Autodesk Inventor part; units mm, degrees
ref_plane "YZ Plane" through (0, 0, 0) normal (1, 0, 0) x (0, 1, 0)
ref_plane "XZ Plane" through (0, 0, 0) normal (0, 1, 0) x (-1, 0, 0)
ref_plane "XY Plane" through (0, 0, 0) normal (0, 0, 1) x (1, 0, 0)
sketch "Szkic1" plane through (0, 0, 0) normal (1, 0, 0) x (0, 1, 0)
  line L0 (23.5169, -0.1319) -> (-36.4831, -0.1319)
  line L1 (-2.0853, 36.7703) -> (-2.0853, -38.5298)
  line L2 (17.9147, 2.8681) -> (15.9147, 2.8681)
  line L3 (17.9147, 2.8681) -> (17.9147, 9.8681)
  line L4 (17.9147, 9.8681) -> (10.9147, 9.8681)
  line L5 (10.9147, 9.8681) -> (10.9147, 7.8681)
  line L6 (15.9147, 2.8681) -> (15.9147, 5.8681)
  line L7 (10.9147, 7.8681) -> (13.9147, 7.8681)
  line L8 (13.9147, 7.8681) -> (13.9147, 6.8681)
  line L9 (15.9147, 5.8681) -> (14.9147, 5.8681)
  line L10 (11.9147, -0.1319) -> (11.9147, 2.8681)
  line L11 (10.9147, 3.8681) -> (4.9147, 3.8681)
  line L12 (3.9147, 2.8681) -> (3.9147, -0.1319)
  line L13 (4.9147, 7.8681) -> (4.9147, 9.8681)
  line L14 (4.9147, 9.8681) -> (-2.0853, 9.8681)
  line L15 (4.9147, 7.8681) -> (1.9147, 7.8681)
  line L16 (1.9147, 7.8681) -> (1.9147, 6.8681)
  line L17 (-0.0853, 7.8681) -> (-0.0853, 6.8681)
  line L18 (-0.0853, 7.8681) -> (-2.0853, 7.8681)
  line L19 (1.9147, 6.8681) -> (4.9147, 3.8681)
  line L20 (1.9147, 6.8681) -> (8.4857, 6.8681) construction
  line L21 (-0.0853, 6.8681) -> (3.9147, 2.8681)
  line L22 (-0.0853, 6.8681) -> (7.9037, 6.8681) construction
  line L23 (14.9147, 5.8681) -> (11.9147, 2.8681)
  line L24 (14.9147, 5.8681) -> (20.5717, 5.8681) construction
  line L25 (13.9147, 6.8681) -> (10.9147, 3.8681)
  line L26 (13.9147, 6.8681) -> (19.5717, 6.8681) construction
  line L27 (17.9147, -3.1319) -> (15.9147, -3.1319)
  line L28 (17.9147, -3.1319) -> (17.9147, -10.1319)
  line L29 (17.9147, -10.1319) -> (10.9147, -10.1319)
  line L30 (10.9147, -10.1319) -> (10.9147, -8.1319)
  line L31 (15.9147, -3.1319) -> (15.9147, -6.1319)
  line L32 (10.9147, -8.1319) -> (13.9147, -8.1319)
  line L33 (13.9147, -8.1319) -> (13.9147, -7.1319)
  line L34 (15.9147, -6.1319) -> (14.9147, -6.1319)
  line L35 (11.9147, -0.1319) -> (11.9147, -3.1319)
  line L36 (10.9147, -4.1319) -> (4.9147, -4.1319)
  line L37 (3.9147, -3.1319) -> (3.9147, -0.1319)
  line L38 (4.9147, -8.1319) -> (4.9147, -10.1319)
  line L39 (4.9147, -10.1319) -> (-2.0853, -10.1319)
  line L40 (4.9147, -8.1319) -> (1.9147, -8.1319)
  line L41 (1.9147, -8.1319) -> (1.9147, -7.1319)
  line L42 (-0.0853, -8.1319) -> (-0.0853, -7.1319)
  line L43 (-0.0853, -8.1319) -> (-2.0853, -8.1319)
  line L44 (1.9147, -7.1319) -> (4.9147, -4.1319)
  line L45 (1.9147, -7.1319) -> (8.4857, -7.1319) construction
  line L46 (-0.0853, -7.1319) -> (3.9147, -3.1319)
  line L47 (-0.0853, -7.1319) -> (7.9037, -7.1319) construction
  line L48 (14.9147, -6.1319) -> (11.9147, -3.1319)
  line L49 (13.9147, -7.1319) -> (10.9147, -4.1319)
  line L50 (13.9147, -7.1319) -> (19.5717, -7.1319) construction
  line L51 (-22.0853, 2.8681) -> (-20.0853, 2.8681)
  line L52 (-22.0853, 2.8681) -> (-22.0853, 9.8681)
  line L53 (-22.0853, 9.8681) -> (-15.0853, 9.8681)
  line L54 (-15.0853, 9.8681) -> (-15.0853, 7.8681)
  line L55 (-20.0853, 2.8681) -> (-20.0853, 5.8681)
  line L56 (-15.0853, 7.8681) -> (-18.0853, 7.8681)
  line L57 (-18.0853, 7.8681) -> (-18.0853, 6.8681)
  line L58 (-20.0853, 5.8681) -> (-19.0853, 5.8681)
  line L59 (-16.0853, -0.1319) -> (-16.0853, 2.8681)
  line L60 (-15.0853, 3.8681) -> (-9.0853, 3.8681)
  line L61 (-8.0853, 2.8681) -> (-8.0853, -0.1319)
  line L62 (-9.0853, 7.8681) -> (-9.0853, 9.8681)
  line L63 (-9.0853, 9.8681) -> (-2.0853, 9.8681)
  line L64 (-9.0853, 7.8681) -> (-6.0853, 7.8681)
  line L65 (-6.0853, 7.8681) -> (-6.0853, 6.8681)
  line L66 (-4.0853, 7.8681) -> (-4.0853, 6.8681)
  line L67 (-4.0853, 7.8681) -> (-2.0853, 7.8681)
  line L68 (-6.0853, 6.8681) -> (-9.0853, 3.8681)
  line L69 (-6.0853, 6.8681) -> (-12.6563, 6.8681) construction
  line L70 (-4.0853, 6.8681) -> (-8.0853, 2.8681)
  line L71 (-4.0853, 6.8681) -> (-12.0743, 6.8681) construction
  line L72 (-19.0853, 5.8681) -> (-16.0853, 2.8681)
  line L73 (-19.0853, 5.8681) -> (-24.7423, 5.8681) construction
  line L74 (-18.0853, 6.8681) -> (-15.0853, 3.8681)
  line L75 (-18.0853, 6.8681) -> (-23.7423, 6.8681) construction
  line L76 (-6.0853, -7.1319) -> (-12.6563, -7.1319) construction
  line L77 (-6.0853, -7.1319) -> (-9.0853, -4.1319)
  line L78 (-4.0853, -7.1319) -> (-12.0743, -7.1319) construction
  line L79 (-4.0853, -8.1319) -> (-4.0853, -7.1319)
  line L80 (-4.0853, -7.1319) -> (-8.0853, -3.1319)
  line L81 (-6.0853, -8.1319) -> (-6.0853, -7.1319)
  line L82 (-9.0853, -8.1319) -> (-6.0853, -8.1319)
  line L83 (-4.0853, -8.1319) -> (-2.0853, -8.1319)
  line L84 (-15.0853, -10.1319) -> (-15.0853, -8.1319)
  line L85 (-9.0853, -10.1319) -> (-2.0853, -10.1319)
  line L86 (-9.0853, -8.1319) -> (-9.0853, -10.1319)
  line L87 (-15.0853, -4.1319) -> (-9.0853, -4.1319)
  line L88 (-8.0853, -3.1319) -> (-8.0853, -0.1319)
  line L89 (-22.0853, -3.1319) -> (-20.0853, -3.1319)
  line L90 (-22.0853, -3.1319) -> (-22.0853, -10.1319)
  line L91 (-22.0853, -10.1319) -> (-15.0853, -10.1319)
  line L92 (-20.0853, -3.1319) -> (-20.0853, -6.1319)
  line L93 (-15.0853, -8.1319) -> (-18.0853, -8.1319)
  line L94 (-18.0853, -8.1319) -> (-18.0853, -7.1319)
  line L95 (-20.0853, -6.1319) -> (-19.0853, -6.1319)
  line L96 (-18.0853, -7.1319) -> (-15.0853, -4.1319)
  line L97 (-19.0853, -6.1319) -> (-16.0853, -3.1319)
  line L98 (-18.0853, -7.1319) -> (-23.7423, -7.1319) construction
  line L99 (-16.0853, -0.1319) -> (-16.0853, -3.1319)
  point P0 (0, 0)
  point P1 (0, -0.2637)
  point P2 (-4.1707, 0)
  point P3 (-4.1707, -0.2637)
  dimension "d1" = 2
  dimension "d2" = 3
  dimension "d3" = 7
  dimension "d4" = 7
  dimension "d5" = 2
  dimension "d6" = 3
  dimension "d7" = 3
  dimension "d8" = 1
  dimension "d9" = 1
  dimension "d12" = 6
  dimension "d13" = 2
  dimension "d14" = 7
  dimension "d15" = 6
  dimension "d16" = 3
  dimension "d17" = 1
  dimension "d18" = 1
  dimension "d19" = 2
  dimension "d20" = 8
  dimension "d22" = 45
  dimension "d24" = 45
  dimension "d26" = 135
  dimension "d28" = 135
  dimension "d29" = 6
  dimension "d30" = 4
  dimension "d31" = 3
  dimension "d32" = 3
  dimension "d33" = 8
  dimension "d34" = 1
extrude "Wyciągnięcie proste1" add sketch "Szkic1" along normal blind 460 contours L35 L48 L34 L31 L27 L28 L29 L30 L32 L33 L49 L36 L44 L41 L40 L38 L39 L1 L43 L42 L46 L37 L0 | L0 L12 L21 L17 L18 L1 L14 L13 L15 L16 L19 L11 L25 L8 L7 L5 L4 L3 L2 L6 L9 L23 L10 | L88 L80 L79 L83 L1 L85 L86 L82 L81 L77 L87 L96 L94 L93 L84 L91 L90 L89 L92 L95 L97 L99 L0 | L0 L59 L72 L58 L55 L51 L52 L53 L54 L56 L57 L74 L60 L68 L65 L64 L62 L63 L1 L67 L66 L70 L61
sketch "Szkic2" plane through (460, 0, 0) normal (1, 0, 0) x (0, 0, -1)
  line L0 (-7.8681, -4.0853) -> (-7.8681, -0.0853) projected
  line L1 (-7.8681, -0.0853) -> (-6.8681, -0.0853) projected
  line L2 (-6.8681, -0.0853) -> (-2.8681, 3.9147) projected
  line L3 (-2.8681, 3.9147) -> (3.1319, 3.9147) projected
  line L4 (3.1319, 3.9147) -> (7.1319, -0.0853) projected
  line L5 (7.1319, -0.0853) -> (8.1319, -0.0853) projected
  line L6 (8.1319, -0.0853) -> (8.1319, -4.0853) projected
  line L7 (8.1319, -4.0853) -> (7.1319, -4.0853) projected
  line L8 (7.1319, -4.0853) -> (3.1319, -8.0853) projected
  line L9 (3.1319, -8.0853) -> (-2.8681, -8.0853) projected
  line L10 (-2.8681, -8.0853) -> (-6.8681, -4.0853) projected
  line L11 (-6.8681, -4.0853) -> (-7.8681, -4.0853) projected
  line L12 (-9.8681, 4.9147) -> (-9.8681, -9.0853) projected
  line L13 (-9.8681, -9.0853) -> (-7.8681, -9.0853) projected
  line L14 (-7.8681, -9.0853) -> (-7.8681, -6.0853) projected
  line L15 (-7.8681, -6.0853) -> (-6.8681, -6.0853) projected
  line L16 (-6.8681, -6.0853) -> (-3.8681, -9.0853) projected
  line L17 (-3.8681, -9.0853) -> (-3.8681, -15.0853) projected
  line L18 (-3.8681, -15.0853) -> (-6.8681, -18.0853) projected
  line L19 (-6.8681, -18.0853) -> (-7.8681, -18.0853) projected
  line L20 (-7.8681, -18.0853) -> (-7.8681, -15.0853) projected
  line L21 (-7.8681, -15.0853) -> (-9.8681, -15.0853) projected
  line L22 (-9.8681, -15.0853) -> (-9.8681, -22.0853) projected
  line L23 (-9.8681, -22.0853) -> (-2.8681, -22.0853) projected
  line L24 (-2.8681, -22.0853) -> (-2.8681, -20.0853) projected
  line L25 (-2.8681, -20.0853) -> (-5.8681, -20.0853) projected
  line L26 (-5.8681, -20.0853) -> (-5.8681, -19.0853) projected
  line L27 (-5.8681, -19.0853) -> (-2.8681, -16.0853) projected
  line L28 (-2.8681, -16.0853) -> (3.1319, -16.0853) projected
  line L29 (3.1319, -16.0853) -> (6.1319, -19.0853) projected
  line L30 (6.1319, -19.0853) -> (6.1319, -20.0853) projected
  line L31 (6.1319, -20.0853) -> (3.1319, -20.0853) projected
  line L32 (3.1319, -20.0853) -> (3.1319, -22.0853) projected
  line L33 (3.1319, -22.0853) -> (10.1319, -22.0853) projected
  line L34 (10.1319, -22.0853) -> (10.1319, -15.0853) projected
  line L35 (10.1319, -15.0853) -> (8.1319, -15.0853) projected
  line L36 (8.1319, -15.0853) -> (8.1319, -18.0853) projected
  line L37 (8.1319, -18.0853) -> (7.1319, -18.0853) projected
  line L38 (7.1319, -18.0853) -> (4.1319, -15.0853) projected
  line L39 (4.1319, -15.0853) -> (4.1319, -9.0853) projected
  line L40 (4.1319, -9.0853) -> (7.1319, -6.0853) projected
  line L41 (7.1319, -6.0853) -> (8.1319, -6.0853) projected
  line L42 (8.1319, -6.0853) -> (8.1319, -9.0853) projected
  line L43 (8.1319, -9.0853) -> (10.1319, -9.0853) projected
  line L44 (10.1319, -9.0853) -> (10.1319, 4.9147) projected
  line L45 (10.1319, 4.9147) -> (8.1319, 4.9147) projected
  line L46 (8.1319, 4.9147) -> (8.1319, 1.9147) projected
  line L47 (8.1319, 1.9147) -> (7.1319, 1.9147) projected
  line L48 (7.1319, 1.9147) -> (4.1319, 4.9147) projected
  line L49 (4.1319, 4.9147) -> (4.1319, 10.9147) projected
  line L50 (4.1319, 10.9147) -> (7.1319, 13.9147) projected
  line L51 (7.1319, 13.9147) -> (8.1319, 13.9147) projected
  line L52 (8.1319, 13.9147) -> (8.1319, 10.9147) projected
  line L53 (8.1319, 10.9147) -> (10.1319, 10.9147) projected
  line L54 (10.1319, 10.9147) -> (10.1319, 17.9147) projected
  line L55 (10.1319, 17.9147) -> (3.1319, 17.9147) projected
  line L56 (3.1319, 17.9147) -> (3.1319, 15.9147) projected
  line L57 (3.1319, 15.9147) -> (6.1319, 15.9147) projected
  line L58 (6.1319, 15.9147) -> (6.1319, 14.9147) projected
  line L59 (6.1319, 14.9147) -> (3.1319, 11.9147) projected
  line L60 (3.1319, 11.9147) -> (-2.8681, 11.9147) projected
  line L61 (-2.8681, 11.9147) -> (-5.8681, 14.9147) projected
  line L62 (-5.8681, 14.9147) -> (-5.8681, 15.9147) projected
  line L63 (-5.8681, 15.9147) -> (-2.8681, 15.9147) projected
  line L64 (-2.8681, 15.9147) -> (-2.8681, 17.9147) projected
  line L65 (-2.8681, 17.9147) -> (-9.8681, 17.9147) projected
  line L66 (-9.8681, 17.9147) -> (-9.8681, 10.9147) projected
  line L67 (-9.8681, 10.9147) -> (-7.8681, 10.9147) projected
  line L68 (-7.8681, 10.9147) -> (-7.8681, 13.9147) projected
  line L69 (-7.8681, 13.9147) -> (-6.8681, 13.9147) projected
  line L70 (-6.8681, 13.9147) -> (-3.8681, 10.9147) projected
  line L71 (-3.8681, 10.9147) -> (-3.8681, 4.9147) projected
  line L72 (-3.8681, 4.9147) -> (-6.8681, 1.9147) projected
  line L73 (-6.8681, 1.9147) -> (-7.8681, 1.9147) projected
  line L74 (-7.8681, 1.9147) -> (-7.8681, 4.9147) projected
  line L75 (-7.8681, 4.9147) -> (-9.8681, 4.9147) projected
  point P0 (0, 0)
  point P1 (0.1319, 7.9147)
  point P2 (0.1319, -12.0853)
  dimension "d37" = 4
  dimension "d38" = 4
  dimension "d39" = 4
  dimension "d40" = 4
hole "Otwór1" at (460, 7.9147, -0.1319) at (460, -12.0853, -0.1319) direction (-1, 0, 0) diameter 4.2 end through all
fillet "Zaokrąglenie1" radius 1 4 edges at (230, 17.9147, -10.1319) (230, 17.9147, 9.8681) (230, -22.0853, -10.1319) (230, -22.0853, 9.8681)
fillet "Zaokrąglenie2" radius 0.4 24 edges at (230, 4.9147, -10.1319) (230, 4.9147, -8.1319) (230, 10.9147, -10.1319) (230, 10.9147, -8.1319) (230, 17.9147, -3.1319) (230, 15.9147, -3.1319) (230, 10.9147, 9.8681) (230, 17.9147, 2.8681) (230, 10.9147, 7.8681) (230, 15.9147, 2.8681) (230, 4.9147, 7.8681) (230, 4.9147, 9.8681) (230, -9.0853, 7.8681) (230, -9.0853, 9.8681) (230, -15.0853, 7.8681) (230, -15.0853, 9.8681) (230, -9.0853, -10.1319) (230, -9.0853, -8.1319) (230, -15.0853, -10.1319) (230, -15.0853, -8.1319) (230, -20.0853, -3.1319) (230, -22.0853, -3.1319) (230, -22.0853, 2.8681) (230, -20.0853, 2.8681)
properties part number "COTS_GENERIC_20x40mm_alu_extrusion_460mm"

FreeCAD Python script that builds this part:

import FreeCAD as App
import Part
import Sketcher
from FreeCAD import Vector
Q = App.Units.Quantity


def edges_at(feature, points):
    """Names of the edges that pass closest to the given points."""
    edges = feature.Shape.Edges
    near = lambda p: min(range(len(edges)), key=lambda i: edges[i].distToShape(Part.Vertex(*p))[0])
    return sorted({f"Edge{near(p) + 1}" for p in points})

doc = App.newDocument("Part")
params = doc.addObject("Spreadsheet::Sheet", "Params")
for row, (alias, value) in enumerate([
    ("sketch1_width", "1 mm"),
    ("sketch1_width2", "2 mm"),
    ("sketch1_width3", "7 mm"),
    ("sketch1_width4", "3 mm"),
    ("sketch1_width5", "6 mm"),
    ("pad1_length", "460 mm"),
    ("sketch2_diameter", "4.2 mm"),
    ("hole_diameter", "4.2 mm"),
    ("fillet_radius", "1 mm"),
    ("fillet2_radius", "0.4 mm"),
], start=1):
    params.set(f"A{row}", alias)
    params.set(f"B{row}", "=" + value)
    params.setAlias(f"B{row}", alias)

body = doc.addObject("PartDesign::Body", "Body")

# Sketch on YZ plane
sketch1 = body.newObject("Sketcher::SketchObject", "Sketch")
sketch1.AttachmentSupport = (doc.getObject("YZ_Plane"), [""])
sketch1.MapMode = "FlatFace"
sketch1.addGeometry([
    Part.LineSegment(Vector(11.9147, -3.1319, 0), Vector(11.9147, 2.8681, 0)),  # 0
    Part.LineSegment(Vector(11.9147, 2.8681, 0), Vector(14.9147, 5.8681, 0)),  # 1
    Part.LineSegment(Vector(14.9147, 5.8681, 0), Vector(15.9147, 5.8681, 0)),  # 2
    Part.LineSegment(Vector(15.9147, 5.8681, 0), Vector(15.9147, 2.8681, 0)),  # 3
    Part.LineSegment(Vector(15.9147, 2.8681, 0), Vector(17.9147, 2.8681, 0)),  # 4
    Part.LineSegment(Vector(17.9147, 2.8681, 0), Vector(17.9147, 9.8681, 0)),  # 5
    Part.LineSegment(Vector(17.9147, 9.8681, 0), Vector(10.9147, 9.8681, 0)),  # 6
    Part.LineSegment(Vector(10.9147, 9.8681, 0), Vector(10.9147, 7.8681, 0)),  # 7
    Part.LineSegment(Vector(10.9147, 7.8681, 0), Vector(13.9147, 7.8681, 0)),  # 8
    Part.LineSegment(Vector(13.9147, 7.8681, 0), Vector(13.9147, 6.8681, 0)),  # 9
    Part.LineSegment(Vector(13.9147, 6.8681, 0), Vector(10.9147, 3.8681, 0)),  # 10
    Part.LineSegment(Vector(10.9147, 3.8681, 0), Vector(4.9147, 3.8681, 0)),  # 11
    Part.LineSegment(Vector(4.9147, 3.8681, 0), Vector(1.9147, 6.8681, 0)),  # 12
    Part.LineSegment(Vector(1.9147, 6.8681, 0), Vector(1.9147, 7.8681, 0)),  # 13
    Part.LineSegment(Vector(1.9147, 7.8681, 0), Vector(4.9147, 7.8681, 0)),  # 14
    Part.LineSegment(Vector(4.9147, 7.8681, 0), Vector(4.9147, 9.8681, 0)),  # 15
    Part.LineSegment(Vector(4.9147, 9.8681, 0), Vector(-9.0853, 9.8681, 0)),  # 16
    Part.LineSegment(Vector(-9.0853, 9.8681, 0), Vector(-9.0853, 7.8681, 0)),  # 17
    Part.LineSegment(Vector(-9.0853, 7.8681, 0), Vector(-6.0853, 7.8681, 0)),  # 18
    Part.LineSegment(Vector(-6.0853, 7.8681, 0), Vector(-6.0853, 6.8681, 0)),  # 19
    Part.LineSegment(Vector(-6.0853, 6.8681, 0), Vector(-9.0853, 3.8681, 0)),  # 20
    Part.LineSegment(Vector(-9.0853, 3.8681, 0), Vector(-15.0853, 3.8681, 0)),  # 21
    Part.LineSegment(Vector(-15.0853, 3.8681, 0), Vector(-18.0853, 6.8681, 0)),  # 22
    Part.LineSegment(Vector(-18.0853, 6.8681, 0), Vector(-18.0853, 7.8681, 0)),  # 23
    Part.LineSegment(Vector(-18.0853, 7.8681, 0), Vector(-15.0853, 7.8681, 0)),  # 24
    Part.LineSegment(Vector(-15.0853, 7.8681, 0), Vector(-15.0853, 9.8681, 0)),  # 25
    Part.LineSegment(Vector(-15.0853, 9.8681, 0), Vector(-22.0853, 9.8681, 0)),  # 26
    Part.LineSegment(Vector(-22.0853, 9.8681, 0), Vector(-22.0853, 2.8681, 0)),  # 27
    Part.LineSegment(Vector(-22.0853, 2.8681, 0), Vector(-20.0853, 2.8681, 0)),  # 28
    Part.LineSegment(Vector(-20.0853, 2.8681, 0), Vector(-20.0853, 5.8681, 0)),  # 29
    Part.LineSegment(Vector(-20.0853, 5.8681, 0), Vector(-19.0853, 5.8681, 0)),  # 30
    Part.LineSegment(Vector(-19.0853, 5.8681, 0), Vector(-16.0853, 2.8681, 0)),  # 31
    Part.LineSegment(Vector(-16.0853, 2.8681, 0), Vector(-16.0853, -3.1319, 0)),  # 32
    Part.LineSegment(Vector(-16.0853, -3.1319, 0), Vector(-19.0853, -6.1319, 0)),  # 33
    Part.LineSegment(Vector(-19.0853, -6.1319, 0), Vector(-20.0853, -6.1319, 0)),  # 34
    Part.LineSegment(Vector(-20.0853, -6.1319, 0), Vector(-20.0853, -3.1319, 0)),  # 35
    Part.LineSegment(Vector(-20.0853, -3.1319, 0), Vector(-22.0853, -3.1319, 0)),  # 36
    Part.LineSegment(Vector(-22.0853, -3.1319, 0), Vector(-22.0853, -10.1319, 0)),  # 37
    Part.LineSegment(Vector(-22.0853, -10.1319, 0), Vector(-15.0853, -10.1319, 0)),  # 38
    Part.LineSegment(Vector(-15.0853, -10.1319, 0), Vector(-15.0853, -8.1319, 0)),  # 39
    Part.LineSegment(Vector(-15.0853, -8.1319, 0), Vector(-18.0853, -8.1319, 0)),  # 40
    Part.LineSegment(Vector(-18.0853, -8.1319, 0), Vector(-18.0853, -7.1319, 0)),  # 41
    Part.LineSegment(Vector(-18.0853, -7.1319, 0), Vector(-15.0853, -4.1319, 0)),  # 42
    Part.LineSegment(Vector(-15.0853, -4.1319, 0), Vector(-9.0853, -4.1319, 0)),  # 43
    Part.LineSegment(Vector(-9.0853, -4.1319, 0), Vector(-6.0853, -7.1319, 0)),  # 44
    Part.LineSegment(Vector(-6.0853, -7.1319, 0), Vector(-6.0853, -8.1319, 0)),  # 45
    Part.LineSegment(Vector(-6.0853, -8.1319, 0), Vector(-9.0853, -8.1319, 0)),  # 46
    Part.LineSegment(Vector(-9.0853, -8.1319, 0), Vector(-9.0853, -10.1319, 0)),  # 47
    Part.LineSegment(Vector(-9.0853, -10.1319, 0), Vector(4.9147, -10.1319, 0)),  # 48
    Part.LineSegment(Vector(4.9147, -10.1319, 0), Vector(4.9147, -8.1319, 0)),  # 49
    Part.LineSegment(Vector(4.9147, -8.1319, 0), Vector(1.9147, -8.1319, 0)),  # 50
    Part.LineSegment(Vector(1.9147, -8.1319, 0), Vector(1.9147, -7.1319, 0)),  # 51
    Part.LineSegment(Vector(1.9147, -7.1319, 0), Vector(4.9147, -4.1319, 0)),  # 52
    Part.LineSegment(Vector(4.9147, -4.1319, 0), Vector(10.9147, -4.1319, 0)),  # 53
    Part.LineSegment(Vector(10.9147, -4.1319, 0), Vector(13.9147, -7.1319, 0)),  # 54
    Part.LineSegment(Vector(13.9147, -7.1319, 0), Vector(13.9147, -8.1319, 0)),  # 55
    Part.LineSegment(Vector(13.9147, -8.1319, 0), Vector(10.9147, -8.1319, 0)),  # 56
    Part.LineSegment(Vector(10.9147, -8.1319, 0), Vector(10.9147, -10.1319, 0)),  # 57
    Part.LineSegment(Vector(10.9147, -10.1319, 0), Vector(17.9147, -10.1319, 0)),  # 58
    Part.LineSegment(Vector(17.9147, -10.1319, 0), Vector(17.9147, -3.1319, 0)),  # 59
    Part.LineSegment(Vector(17.9147, -3.1319, 0), Vector(15.9147, -3.1319, 0)),  # 60
    Part.LineSegment(Vector(15.9147, -3.1319, 0), Vector(15.9147, -6.1319, 0)),  # 61
    Part.LineSegment(Vector(15.9147, -6.1319, 0), Vector(14.9147, -6.1319, 0)),  # 62
    Part.LineSegment(Vector(14.9147, -6.1319, 0), Vector(11.9147, -3.1319, 0)),  # 63
    Part.LineSegment(Vector(-0.0853, -8.1319, 0), Vector(-4.0853, -8.1319, 0)),  # 64
    Part.LineSegment(Vector(-4.0853, -8.1319, 0), Vector(-4.0853, -7.1319, 0)),  # 65
    Part.LineSegment(Vector(-4.0853, -7.1319, 0), Vector(-8.0853, -3.1319, 0)),  # 66
    Part.LineSegment(Vector(-8.0853, -3.1319, 0), Vector(-8.0853, 2.8681, 0)),  # 67
    Part.LineSegment(Vector(-8.0853, 2.8681, 0), Vector(-4.0853, 6.8681, 0)),  # 68
    Part.LineSegment(Vector(-4.0853, 6.8681, 0), Vector(-4.0853, 7.8681, 0)),  # 69
    Part.LineSegment(Vector(-4.0853, 7.8681, 0), Vector(-0.0853, 7.8681, 0)),  # 70
    Part.LineSegment(Vector(-0.0853, 7.8681, 0), Vector(-0.0853, 6.8681, 0)),  # 71
    Part.LineSegment(Vector(-0.0853, 6.8681, 0), Vector(3.9147, 2.8681, 0)),  # 72
    Part.LineSegment(Vector(3.9147, 2.8681, 0), Vector(3.9147, -3.1319, 0)),  # 73
    Part.LineSegment(Vector(3.9147, -3.1319, 0), Vector(-0.0853, -7.1319, 0)),  # 74
    Part.LineSegment(Vector(-0.0853, -7.1319, 0), Vector(-0.0853, -8.1319, 0)),  # 75
], False)
sketch1.addConstraint([
    Sketcher.Constraint("Coincident", 0, 2, 1, 1),
    Sketcher.Constraint("Coincident", 1, 2, 2, 1),
    Sketcher.Constraint("Coincident", 2, 2, 3, 1),
    Sketcher.Constraint("Coincident", 3, 2, 4, 1),
    Sketcher.Constraint("Coincident", 4, 2, 5, 1),
    Sketcher.Constraint("Coincident", 5, 2, 6, 1),
    Sketcher.Constraint("Coincident", 6, 2, 7, 1),
    Sketcher.Constraint("Coincident", 7, 2, 8, 1),
    Sketcher.Constraint("Coincident", 8, 2, 9, 1),
    Sketcher.Constraint("Coincident", 9, 2, 10, 1),
    Sketcher.Constraint("Coincident", 10, 2, 11, 1),
    Sketcher.Constraint("Coincident", 11, 2, 12, 1),
    Sketcher.Constraint("Coincident", 12, 2, 13, 1),
    Sketcher.Constraint("Coincident", 13, 2, 14, 1),
    Sketcher.Constraint("Coincident", 14, 2, 15, 1),
    Sketcher.Constraint("Coincident", 15, 2, 16, 1),
    Sketcher.Constraint("Coincident", 16, 2, 17, 1),
    Sketcher.Constraint("Coincident", 17, 2, 18, 1),
    Sketcher.Constraint("Coincident", 18, 2, 19, 1),
    Sketcher.Constraint("Coincident", 19, 2, 20, 1),
    Sketcher.Constraint("Coincident", 20, 2, 21, 1),
    Sketcher.Constraint("Coincident", 21, 2, 22, 1),
    Sketcher.Constraint("Coincident", 22, 2, 23, 1),
    Sketcher.Constraint("Coincident", 23, 2, 24, 1),
    Sketcher.Constraint("Coincident", 24, 2, 25, 1),
    Sketcher.Constraint("Coincident", 25, 2, 26, 1),
    Sketcher.Constraint("Coincident", 26, 2, 27, 1),
    Sketcher.Constraint("Coincident", 27, 2, 28, 1),
    Sketcher.Constraint("Coincident", 28, 2, 29, 1),
    Sketcher.Constraint("Coincident", 29, 2, 30, 1),
    Sketcher.Constraint("Coincident", 30, 2, 31, 1),
    Sketcher.Constraint("Coincident", 31, 2, 32, 1),
    Sketcher.Constraint("Coincident", 32, 2, 33, 1),
    Sketcher.Constraint("Coincident", 33, 2, 34, 1),
    Sketcher.Constraint("Coincident", 34, 2, 35, 1),
    Sketcher.Constraint("Coincident", 35, 2, 36, 1),
    Sketcher.Constraint("Coincident", 36, 2, 37, 1),
    Sketcher.Constraint("Coincident", 37, 2, 38, 1),
    Sketcher.Constraint("Coincident", 38, 2, 39, 1),
    Sketcher.Constraint("Coincident", 39, 2, 40, 1),
    Sketcher.Constraint("Coincident", 40, 2, 41, 1),
    Sketcher.Constraint("Coincident", 41, 2, 42, 1),
    Sketcher.Constraint("Coincident", 42, 2, 43, 1),
    Sketcher.Constraint("Coincident", 43, 2, 44, 1),
    Sketcher.Constraint("Coincident", 44, 2, 45, 1),
    Sketcher.Constraint("Coincident", 45, 2, 46, 1),
    Sketcher.Constraint("Coincident", 46, 2, 47, 1),
    Sketcher.Constraint("Coincident", 47, 2, 48, 1),
    Sketcher.Constraint("Coincident", 48, 2, 49, 1),
    Sketcher.Constraint("Coincident", 49, 2, 50, 1),
    Sketcher.Constraint("Coincident", 50, 2, 51, 1),
    Sketcher.Constraint("Coincident", 51, 2, 52, 1),
    Sketcher.Constraint("Coincident", 52, 2, 53, 1),
    Sketcher.Constraint("Coincident", 53, 2, 54, 1),
    Sketcher.Constraint("Coincident", 54, 2, 55, 1),
    Sketcher.Constraint("Coincident", 55, 2, 56, 1),
    Sketcher.Constraint("Coincident", 56, 2, 57, 1),
    Sketcher.Constraint("Coincident", 57, 2, 58, 1),
    Sketcher.Constraint("Coincident", 58, 2, 59, 1),
    Sketcher.Constraint("Coincident", 59, 2, 60, 1),
    Sketcher.Constraint("Coincident", 60, 2, 61, 1),
    Sketcher.Constraint("Coincident", 61, 2, 62, 1),
    Sketcher.Constraint("Coincident", 62, 2, 63, 1),
    Sketcher.Constraint("Coincident", 63, 2, 0, 1),
    Sketcher.Constraint("Coincident", 64, 2, 65, 1),
    Sketcher.Constraint("Coincident", 65, 2, 66, 1),
    Sketcher.Constraint("Coincident", 66, 2, 67, 1),
    Sketcher.Constraint("Coincident", 67, 2, 68, 1),
    Sketcher.Constraint("Coincident", 68, 2, 69, 1),
    Sketcher.Constraint("Coincident", 69, 2, 70, 1),
    Sketcher.Constraint("Coincident", 70, 2, 71, 1),
    Sketcher.Constraint("Coincident", 71, 2, 72, 1),
    Sketcher.Constraint("Coincident", 72, 2, 73, 1),
    Sketcher.Constraint("Coincident", 73, 2, 74, 1),
    Sketcher.Constraint("Coincident", 74, 2, 75, 1),
    Sketcher.Constraint("Coincident", 75, 2, 64, 1),
    Sketcher.Constraint("Vertical", 0),
    Sketcher.Constraint("Horizontal", 2),
    Sketcher.Constraint("Vertical", 3),
    Sketcher.Constraint("Horizontal", 4),
    Sketcher.Constraint("Vertical", 5),
    Sketcher.Constraint("Horizontal", 6),
    Sketcher.Constraint("Vertical", 7),
    Sketcher.Constraint("Horizontal", 8),
    Sketcher.Constraint("Vertical", 9),
    Sketcher.Constraint("Horizontal", 11),
    Sketcher.Constraint("Vertical", 13),
    Sketcher.Constraint("Horizontal", 14),
    Sketcher.Constraint("Vertical", 15),
    Sketcher.Constraint("Horizontal", 16),
    Sketcher.Constraint("Vertical", 17),
    Sketcher.Constraint("Horizontal", 18),
    Sketcher.Constraint("Vertical", 19),
    Sketcher.Constraint("Horizontal", 21),
    Sketcher.Constraint("Vertical", 23),
    Sketcher.Constraint("Horizontal", 24),
    Sketcher.Constraint("Vertical", 25),
    Sketcher.Constraint("Horizontal", 26),
    Sketcher.Constraint("Vertical", 27),
    Sketcher.Constraint("Horizontal", 28),
    Sketcher.Constraint("Vertical", 29),
    Sketcher.Constraint("Horizontal", 30),
    Sketcher.Constraint("Vertical", 32),
    Sketcher.Constraint("Horizontal", 34),
    Sketcher.Constraint("Vertical", 35),
    Sketcher.Constraint("Horizontal", 36),
    Sketcher.Constraint("Vertical", 37),
    Sketcher.Constraint("Horizontal", 38),
    Sketcher.Constraint("Vertical", 39),
    Sketcher.Constraint("Horizontal", 40),
    Sketcher.Constraint("Vertical", 41),
    Sketcher.Constraint("Horizontal", 43),
    Sketcher.Constraint("Vertical", 45),
    Sketcher.Constraint("Horizontal", 46),
    Sketcher.Constraint("Vertical", 47),
    Sketcher.Constraint("Horizontal", 48),
    Sketcher.Constraint("Vertical", 49),
    Sketcher.Constraint("Horizontal", 50),
    Sketcher.Constraint("Vertical", 51),
    Sketcher.Constraint("Horizontal", 53),
    Sketcher.Constraint("Vertical", 55),
    Sketcher.Constraint("Horizontal", 56),
    Sketcher.Constraint("Vertical", 57),
    Sketcher.Constraint("Horizontal", 58),
    Sketcher.Constraint("Vertical", 59),
    Sketcher.Constraint("Horizontal", 60),
    Sketcher.Constraint("Vertical", 61),
    Sketcher.Constraint("Horizontal", 62),
    Sketcher.Constraint("Horizontal", 64),
    Sketcher.Constraint("Vertical", 65),
    Sketcher.Constraint("Vertical", 67),
    Sketcher.Constraint("Vertical", 69),
    Sketcher.Constraint("Horizontal", 70),
    Sketcher.Constraint("Vertical", 71),
    Sketcher.Constraint("Vertical", 73),
    Sketcher.Constraint("Vertical", 75),
    Sketcher.Constraint("Parallel", 1, 10),
    Sketcher.Constraint("Perpendicular", 10, 12),
    Sketcher.Constraint("Perpendicular", 12, 20),
    Sketcher.Constraint("Perpendicular", 20, 22),
    Sketcher.Constraint("Parallel", 22, 31),
    Sketcher.Constraint("Perpendicular", 31, 33),
    Sketcher.Constraint("Parallel", 33, 42),
    Sketcher.Constraint("Perpendicular", 42, 44),
    Sketcher.Constraint("Perpendicular", 44, 52),
    Sketcher.Constraint("Perpendicular", 52, 54),
    Sketcher.Constraint("Parallel", 54, 63),
    Sketcher.Constraint("Parallel", 63, 66),
    Sketcher.Constraint("Perpendicular", 66, 68),
    Sketcher.Constraint("Perpendicular", 68, 72),
    Sketcher.Constraint("Perpendicular", 72, 74),
    Sketcher.Constraint("Horizontal", 0, 2, 3, 2),
    Sketcher.Constraint("Horizontal", 9, 2, 12, 2),
    Sketcher.Constraint("Horizontal", 8, 2, 13, 2),
    Sketcher.Constraint("Horizontal", 6, 2, 15, 2),
    Sketcher.Constraint("Horizontal", 14, 2, 17, 2),
    Sketcher.Constraint("Horizontal", 12, 2, 19, 2),
    Sketcher.Constraint("Horizontal", 11, 2, 20, 2),
    Sketcher.Constraint("Horizontal", 19, 2, 22, 2),
    Sketcher.Constraint("Horizontal", 18, 2, 23, 2),
    Sketcher.Constraint("Horizontal", 16, 2, 25, 2),
    Sketcher.Constraint("Horizontal", 4, 2, 27, 2),
    Sketcher.Constraint("Horizontal", 2, 2, 29, 2),
    Sketcher.Constraint("Horizontal", 28, 2, 31, 2),
    Sketcher.Constraint("Horizontal", 32, 2, 35, 2),
    Sketcher.Constraint("Horizontal", 41, 2, 44, 2),
    Sketcher.Constraint("Horizontal", 40, 2, 45, 2),
    Sketcher.Constraint("Horizontal", 38, 2, 47, 2),
    Sketcher.Constraint("Horizontal", 46, 2, 49, 2),
    Sketcher.Constraint("Horizontal", 44, 2, 51, 2),
    Sketcher.Constraint("Horizontal", 43, 2, 52, 2),
    Sketcher.Constraint("Horizontal", 51, 2, 54, 2),
    Sketcher.Constraint("Horizontal", 50, 2, 55, 2),
    Sketcher.Constraint("Horizontal", 48, 2, 57, 2),
    Sketcher.Constraint("Horizontal", 36, 2, 59, 2),
    Sketcher.Constraint("Horizontal", 34, 2, 61, 2),
    Sketcher.Constraint("Horizontal", 60, 2, 63, 2),
    Sketcher.Constraint("Horizontal", 56, 2, 64, 2),
    Sketcher.Constraint("Horizontal", 54, 2, 65, 2),
    Sketcher.Constraint("Horizontal", 63, 2, 66, 2),
    Sketcher.Constraint("Horizontal", 31, 2, 67, 2),
    Sketcher.Constraint("Horizontal", 22, 2, 68, 2),
    Sketcher.Constraint("Horizontal", 24, 2, 69, 2),
    Sketcher.Constraint("Horizontal", 68, 2, 71, 2),
    Sketcher.Constraint("Horizontal", 67, 2, 72, 2),
    Sketcher.Constraint("Horizontal", 66, 2, 73, 2),
    Sketcher.Constraint("Horizontal", 65, 2, 74, 2),
    Sketcher.Constraint("Vertical", 7, 2, 10, 2),
    Sketcher.Constraint("Vertical", 11, 2, 14, 2),
    Sketcher.Constraint("Vertical", 17, 2, 20, 2),
    Sketcher.Constraint("Vertical", 21, 2, 24, 2),
    Sketcher.Constraint("Vertical", 30, 2, 33, 2),
    Sketcher.Constraint("Vertical", 29, 2, 34, 2),
    Sketcher.Constraint("Vertical", 27, 2, 36, 2),
    Sketcher.Constraint("Vertical", 25, 2, 38, 2),
    Sketcher.Constraint("Vertical", 23, 2, 40, 2),
    Sketcher.Constraint("Vertical", 39, 2, 42, 2),
    Sketcher.Constraint("Vertical", 20, 2, 43, 2),
    Sketcher.Constraint("Vertical", 19, 2, 44, 2),
    Sketcher.Constraint("Vertical", 43, 2, 46, 2),
    Sketcher.Constraint("Vertical", 15, 2, 48, 2),
    Sketcher.Constraint("Vertical", 13, 2, 50, 2),
    Sketcher.Constraint("Vertical", 10, 2, 53, 2),
    Sketcher.Constraint("Vertical", 53, 2, 56, 2),
    Sketcher.Constraint("Vertical", 5, 2, 58, 2),
    Sketcher.Constraint("Vertical", 3, 2, 60, 2),
    Sketcher.Constraint("Vertical", 65, 2, 68, 2),
    Sketcher.Constraint("Equal", 11, 21),
    Sketcher.Constraint("Equal", 6, 26),
    Sketcher.Constraint("Equal", 4, 28),
    Sketcher.Constraint("Equal", 2, 30),
    Sketcher.Constraint("Equal", 53, 0),
    Sketcher.Constraint("Equal", 56, 3),
    Sketcher.Constraint("Equal", 58, 5),
    Sketcher.Constraint("Equal", 60, 7),
    Sketcher.Constraint("Equal", 62, 9),
    Sketcher.Constraint("Equal", 27, 37),
    Sketcher.Constraint("Equal", 25, 39),
    Sketcher.Constraint("DistanceX", 2, 1, 2, 2, Q("1 mm")),
    Sketcher.Constraint("DistanceX", 4, 1, 4, 2, Q("2 mm")),
    Sketcher.Constraint("DistanceX", 6, 2, 6, 1, Q("7 mm")),
    Sketcher.Constraint("DistanceX", 8, 1, 8, 2, Q("3 mm")),
    Sketcher.Constraint("DistanceX", 11, 2, 11, 1, Q("6 mm")),
    Sketcher.Constraint("DistanceX", 64, 2, 64, 1, Q("4 mm")),
    Sketcher.Constraint("DistanceX", 16, 2, 16, 1, Q("14 mm")),
    Sketcher.Constraint("DistanceY", -1, 1, 0, 2, Q("2.868 mm")),
    Sketcher.Constraint("DistanceX", -1, 1, 0, 2, Q("11.9147 mm")),
    Sketcher.Constraint("DistanceX", 64, 2, -1, 1, Q("4.0853 mm")),
])
sketch1.setExpression("Constraints[218]", "Params.sketch1_width")
sketch1.setExpression("Constraints[219]", "Params.sketch1_width2")
sketch1.setExpression("Constraints[220]", "Params.sketch1_width3")
sketch1.setExpression("Constraints[221]", "Params.sketch1_width4")
sketch1.setExpression("Constraints[222]", "Params.sketch1_width5")
pad1 = body.newObject("PartDesign::Pad", "Pad")
pad1.Profile = sketch1
pad1.setExpression("Length", "Params.pad1_length")

# Sketch on YZ plane
sketch2 = body.newObject("Sketcher::SketchObject", "Sketch001")
sketch2.AttachmentSupport = (doc.getObject("YZ_Plane"), [""])
sketch2.MapMode = "FlatFace"
sketch2.AttachmentOffset = App.Placement(Vector(0, 0, 460), App.Rotation())
sketch2.addGeometry([
    Part.Circle(Vector(7.9147, -0.1319, 0), Vector(0, 0, 1), 2.1),
    Part.Circle(Vector(-12.0853, -0.1319, 0), Vector(0, 0, 1), 2.1),
], False)
sketch2.addConstraint([
    Sketcher.Constraint("Equal", 0, 1),
    Sketcher.Constraint("Horizontal", 0, 3, 1, 3),
    Sketcher.Constraint("Diameter", 0, Q("4.2 mm")),
    Sketcher.Constraint("DistanceX", 1, 3, 0, 3, Q("20 mm")),
    Sketcher.Constraint("DistanceY", 0, 3, -1, 1, Q("0.132 mm")),
    Sketcher.Constraint("DistanceX", -1, 1, 0, 3, Q("7.9147 mm")),
])
sketch2.setExpression("Constraints[2]", "Params.sketch2_diameter")
doc.recompute()
hole = body.newObject("PartDesign::Hole", "Hole")
hole.Profile = sketch2
hole.ThreadType = "None"
hole.setExpression("Diameter", "Params.hole_diameter")
hole.DepthType = "ThroughAll"
doc.recompute()

fillet = body.newObject("PartDesign::Fillet", "Fillet")
fillet.Base = (hole, edges_at(hole, [
    (230, 17.915, -10.132),
    (230, 17.915, 9.868),
    (230, -22.085, -10.132),
    (230, -22.085, 9.868),
]))
fillet.setExpression("Radius", "Params.fillet_radius")
doc.recompute()

fillet2 = body.newObject("PartDesign::Fillet", "Fillet001")
fillet2.Base = (fillet, edges_at(fillet, [
    (230, 4.915, -10.132),
    (230, 4.915, -8.132),
    (230, 10.915, -10.132),
    (230, 10.915, -8.132),
    (230, 17.915, -3.132),
    (230, 15.915, -3.132),
    (230, 10.915, 9.868),
    (230, 17.915, 2.868),
    (230, 10.915, 7.868),
    (230, 15.915, 2.868),
    (230, 4.915, 7.868),
    (230, 4.915, 9.868),
    (230, -9.085, 7.868),
    (230, -9.085, 9.868),
    (230, -15.085, 7.868),
    (230, -15.085, 9.868),
    (230, -9.085, -10.132),
    (230, -9.085, -8.132),
    (230, -15.085, -10.132),
    (230, -15.085, -8.132),
    (230, -20.085, -3.132),
    (230, -22.085, -3.132),
    (230, -22.085, 2.868),
    (230, -20.085, 2.868),
]))
fillet2.setExpression("Radius", "Params.fillet2_radius")

doc.recompute()
